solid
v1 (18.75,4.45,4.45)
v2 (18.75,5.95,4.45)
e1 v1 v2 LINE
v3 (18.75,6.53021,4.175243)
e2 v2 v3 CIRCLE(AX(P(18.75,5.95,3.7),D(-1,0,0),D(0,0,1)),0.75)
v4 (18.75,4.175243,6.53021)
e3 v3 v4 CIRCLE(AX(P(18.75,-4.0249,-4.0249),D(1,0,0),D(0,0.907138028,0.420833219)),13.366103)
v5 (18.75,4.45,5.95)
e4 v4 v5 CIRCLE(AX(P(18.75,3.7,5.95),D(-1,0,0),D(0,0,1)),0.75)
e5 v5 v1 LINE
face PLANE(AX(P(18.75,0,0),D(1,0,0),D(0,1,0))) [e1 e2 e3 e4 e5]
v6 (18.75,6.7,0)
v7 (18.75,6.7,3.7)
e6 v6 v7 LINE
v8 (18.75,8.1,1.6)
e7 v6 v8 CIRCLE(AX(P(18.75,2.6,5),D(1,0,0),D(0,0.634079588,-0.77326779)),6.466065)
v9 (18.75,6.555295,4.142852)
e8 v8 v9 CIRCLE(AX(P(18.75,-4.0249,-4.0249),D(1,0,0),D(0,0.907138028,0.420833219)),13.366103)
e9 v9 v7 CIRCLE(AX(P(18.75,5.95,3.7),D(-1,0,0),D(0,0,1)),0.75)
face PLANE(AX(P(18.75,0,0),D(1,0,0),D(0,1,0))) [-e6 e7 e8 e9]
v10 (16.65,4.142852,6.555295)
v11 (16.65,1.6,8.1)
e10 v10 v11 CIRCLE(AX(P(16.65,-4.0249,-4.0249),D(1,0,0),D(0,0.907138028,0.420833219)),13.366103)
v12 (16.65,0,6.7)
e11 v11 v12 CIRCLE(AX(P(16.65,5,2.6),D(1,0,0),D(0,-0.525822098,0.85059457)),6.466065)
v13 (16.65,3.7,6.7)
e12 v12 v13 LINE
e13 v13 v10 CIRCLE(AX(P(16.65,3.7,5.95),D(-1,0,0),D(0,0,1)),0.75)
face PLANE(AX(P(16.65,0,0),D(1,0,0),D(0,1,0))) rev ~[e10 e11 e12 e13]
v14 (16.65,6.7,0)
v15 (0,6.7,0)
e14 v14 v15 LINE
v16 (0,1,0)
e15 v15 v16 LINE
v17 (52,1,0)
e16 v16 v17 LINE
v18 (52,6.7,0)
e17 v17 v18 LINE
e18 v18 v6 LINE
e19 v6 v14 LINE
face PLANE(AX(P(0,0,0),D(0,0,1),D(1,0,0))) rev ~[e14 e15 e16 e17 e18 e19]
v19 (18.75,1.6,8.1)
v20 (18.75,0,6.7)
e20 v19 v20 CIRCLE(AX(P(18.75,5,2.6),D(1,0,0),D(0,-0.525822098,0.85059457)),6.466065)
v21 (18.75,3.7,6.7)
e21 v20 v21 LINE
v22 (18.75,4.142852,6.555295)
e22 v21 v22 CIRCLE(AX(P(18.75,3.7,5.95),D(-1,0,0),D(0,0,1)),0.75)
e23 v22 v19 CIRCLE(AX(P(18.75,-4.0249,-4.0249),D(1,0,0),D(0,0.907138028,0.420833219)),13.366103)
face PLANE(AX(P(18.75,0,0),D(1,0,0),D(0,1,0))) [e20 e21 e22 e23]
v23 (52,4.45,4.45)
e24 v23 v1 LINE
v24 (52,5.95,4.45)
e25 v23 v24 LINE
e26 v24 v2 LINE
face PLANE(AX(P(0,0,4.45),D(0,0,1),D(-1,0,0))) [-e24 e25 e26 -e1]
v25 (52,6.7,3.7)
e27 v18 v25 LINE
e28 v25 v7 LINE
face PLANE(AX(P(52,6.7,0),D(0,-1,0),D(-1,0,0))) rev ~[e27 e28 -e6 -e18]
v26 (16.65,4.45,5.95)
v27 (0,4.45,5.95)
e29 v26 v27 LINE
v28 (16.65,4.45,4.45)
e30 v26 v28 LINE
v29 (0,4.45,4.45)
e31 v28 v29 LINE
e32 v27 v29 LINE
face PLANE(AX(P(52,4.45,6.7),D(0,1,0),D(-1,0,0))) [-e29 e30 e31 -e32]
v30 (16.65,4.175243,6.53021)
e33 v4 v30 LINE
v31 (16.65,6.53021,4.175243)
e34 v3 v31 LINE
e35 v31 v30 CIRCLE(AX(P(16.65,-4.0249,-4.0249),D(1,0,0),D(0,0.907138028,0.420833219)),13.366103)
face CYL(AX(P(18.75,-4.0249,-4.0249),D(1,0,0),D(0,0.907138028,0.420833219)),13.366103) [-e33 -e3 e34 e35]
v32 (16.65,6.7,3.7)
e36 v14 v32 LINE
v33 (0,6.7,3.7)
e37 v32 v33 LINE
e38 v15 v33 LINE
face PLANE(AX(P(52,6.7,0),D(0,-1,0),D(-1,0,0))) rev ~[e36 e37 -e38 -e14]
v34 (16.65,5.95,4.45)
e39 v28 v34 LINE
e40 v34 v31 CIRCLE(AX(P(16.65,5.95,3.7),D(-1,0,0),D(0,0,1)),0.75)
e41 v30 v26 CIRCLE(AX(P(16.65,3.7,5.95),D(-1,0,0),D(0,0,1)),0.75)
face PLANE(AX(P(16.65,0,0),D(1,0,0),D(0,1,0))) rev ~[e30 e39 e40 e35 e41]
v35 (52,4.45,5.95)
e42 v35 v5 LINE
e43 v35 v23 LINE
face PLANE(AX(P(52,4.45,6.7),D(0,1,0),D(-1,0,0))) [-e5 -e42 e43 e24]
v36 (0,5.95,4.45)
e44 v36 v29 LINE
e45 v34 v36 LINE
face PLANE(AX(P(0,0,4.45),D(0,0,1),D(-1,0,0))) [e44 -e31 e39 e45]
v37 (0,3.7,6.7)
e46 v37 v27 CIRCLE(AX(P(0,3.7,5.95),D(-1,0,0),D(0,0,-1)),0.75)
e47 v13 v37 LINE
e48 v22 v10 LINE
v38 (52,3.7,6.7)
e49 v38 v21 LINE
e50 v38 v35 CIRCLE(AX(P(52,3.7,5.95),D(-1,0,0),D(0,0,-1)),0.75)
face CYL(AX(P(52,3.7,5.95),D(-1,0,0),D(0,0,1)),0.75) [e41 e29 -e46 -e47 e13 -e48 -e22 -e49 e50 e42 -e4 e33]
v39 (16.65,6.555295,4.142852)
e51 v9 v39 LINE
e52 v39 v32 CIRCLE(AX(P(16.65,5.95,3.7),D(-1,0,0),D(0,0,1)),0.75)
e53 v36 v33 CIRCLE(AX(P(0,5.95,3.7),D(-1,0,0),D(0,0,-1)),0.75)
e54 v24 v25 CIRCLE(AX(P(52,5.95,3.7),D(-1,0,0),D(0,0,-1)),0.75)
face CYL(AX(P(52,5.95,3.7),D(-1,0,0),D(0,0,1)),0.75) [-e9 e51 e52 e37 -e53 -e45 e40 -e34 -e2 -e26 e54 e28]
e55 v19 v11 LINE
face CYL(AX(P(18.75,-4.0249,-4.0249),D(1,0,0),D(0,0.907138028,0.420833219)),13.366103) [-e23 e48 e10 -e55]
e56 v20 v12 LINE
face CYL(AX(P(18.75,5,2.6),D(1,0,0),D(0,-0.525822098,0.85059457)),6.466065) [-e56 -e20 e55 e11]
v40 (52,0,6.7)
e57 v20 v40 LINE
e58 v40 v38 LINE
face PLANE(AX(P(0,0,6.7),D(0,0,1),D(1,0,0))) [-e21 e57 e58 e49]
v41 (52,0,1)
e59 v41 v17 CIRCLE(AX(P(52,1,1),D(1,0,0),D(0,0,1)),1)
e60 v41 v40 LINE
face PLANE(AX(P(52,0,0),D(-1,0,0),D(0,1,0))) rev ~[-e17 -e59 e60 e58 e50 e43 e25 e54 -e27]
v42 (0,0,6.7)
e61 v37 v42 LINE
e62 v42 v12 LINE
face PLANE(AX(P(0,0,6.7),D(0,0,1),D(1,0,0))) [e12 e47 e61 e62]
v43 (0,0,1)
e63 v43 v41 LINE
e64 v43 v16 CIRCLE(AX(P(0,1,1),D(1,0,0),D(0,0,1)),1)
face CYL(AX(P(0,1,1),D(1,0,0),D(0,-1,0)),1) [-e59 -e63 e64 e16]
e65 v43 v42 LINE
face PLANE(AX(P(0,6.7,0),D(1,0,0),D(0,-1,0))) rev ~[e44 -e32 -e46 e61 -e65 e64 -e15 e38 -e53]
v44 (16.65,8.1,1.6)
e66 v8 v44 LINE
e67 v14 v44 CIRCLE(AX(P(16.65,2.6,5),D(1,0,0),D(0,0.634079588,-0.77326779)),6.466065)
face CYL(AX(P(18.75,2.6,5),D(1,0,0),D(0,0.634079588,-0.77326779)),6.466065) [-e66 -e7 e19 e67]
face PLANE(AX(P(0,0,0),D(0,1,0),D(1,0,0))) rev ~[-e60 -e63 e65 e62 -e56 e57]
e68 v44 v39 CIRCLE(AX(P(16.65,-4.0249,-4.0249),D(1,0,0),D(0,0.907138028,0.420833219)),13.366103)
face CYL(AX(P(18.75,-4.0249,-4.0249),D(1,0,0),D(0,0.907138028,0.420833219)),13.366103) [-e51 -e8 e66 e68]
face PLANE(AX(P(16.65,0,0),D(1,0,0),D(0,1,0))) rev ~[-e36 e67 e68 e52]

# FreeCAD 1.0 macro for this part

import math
import FreeCAD as App
import Part
import Sketcher

V = App.Vector
Q = App.Units.Quantity


def edges_at(feature, points):
    """Names of the edges that pass closest to the given points."""
    edges = feature.Shape.Edges
    near = lambda p: min(range(len(edges)), key=lambda i: edges[i].distToShape(Part.Vertex(*p))[0])
    return sorted({f"Edge{near(p) + 1}" for p in points})

doc = App.newDocument("Part")
body = doc.addObject("PartDesign::Body", "Body")

sketch1 = doc.addObject("Sketcher::SketchObject", "Sketch")
body.addObject(sketch1)
sketch1.AttachmentSupport = (doc.XY_Plane, [""])
sketch1.MapMode = "FlatFace"
sketch1.addGeometry([
    Part.LineSegment(V(0, 6.7, 0), V(0, 0, 0)),
    Part.LineSegment(V(0, 0, 0), V(52, 0, 0)),
    Part.LineSegment(V(52, 0, 0), V(52, 6.7, 0)),
    Part.LineSegment(V(52, 6.7, 0), V(0, 6.7, 0)),
], False)
sketch1.addConstraint([
    Sketcher.Constraint("Coincident", 0, 2, 1, 1),
    Sketcher.Constraint("Coincident", 1, 2, 2, 1),
    Sketcher.Constraint("Coincident", 2, 2, 3, 1),
    Sketcher.Constraint("Coincident", 3, 2, 0, 1),
    Sketcher.Constraint("Vertical", 0),
    Sketcher.Constraint("Horizontal", 1),
    Sketcher.Constraint("Vertical", 2),
    Sketcher.Constraint("Horizontal", 3),
    Sketcher.Constraint("Coincident", 0, 2, -1, 1),
    Sketcher.Constraint("DistanceX", 1, 1, 1, 2, 52.0),
    Sketcher.Constraint("DistanceY", 0, 2, 0, 1, 6.7),
])
pad1 = doc.addObject("PartDesign::Pad", "Pad")
body.addObject(pad1)
pad1.Profile = sketch1
pad1.Length = 6.7

sketch2 = doc.addObject("Sketcher::SketchObject", "Sketch001")
body.addObject(sketch2)
sketch2.AttachmentSupport = (doc.XY_Plane, [""])
sketch2.MapMode = "FlatFace"
sketch2.AttachmentOffset = App.Placement(V(0, 0, 6.7), App.Rotation())
sketch2.addGeometry([
    Part.LineSegment(V(52, 6.7, 0), V(0, 6.7, 0)),
    Part.LineSegment(V(0, 6.7, 0), V(0, 4.45, 0)),
    Part.LineSegment(V(0, 4.45, 0), V(52, 4.45, 0)),
    Part.LineSegment(V(52, 4.45, 0), V(52, 6.7, 0)),
], False)
sketch2.addConstraint([
    Sketcher.Constraint("Coincident", 0, 2, 1, 1),
    Sketcher.Constraint("Coincident", 1, 2, 2, 1),
    Sketcher.Constraint("Coincident", 2, 2, 3, 1),
    Sketcher.Constraint("Coincident", 3, 2, 0, 1),
    Sketcher.Constraint("Horizontal", 0),
    Sketcher.Constraint("Vertical", 1),
    Sketcher.Constraint("Horizontal", 2),
    Sketcher.Constraint("Vertical", 3),
    Sketcher.Constraint("PointOnObject", 0, 2, -2),
    Sketcher.Constraint("DistanceX", 0, 2, 0, 1, 52.0),
    Sketcher.Constraint("DistanceY", -1, 1, 1, 2, 4.45),
    Sketcher.Constraint("DistanceY", 1, 2, 1, 1, 2.25),
])
pocket1 = doc.addObject("PartDesign::Pocket", "Pocket")
body.addObject(pocket1)
pocket1.Profile = sketch2
pocket1.Length = 2.25
doc.recompute()

fillet = doc.addObject("PartDesign::Fillet", "Fillet")
body.addObject(fillet)
fillet.Base = (pocket1, edges_at(pocket1, [(26, 6.7, 4.45), (26, 4.45, 6.7)]))
fillet.Radius = 0.75
doc.recompute()

fillet2 = doc.addObject("PartDesign::Fillet", "Fillet001")
body.addObject(fillet2)
fillet2.Base = (fillet, edges_at(fillet, [(26, 0, 0)]))
fillet2.Radius = 1

sketch3 = doc.addObject("Sketcher::SketchObject", "Sketch002")
body.addObject(sketch3)
sketch3.AttachmentSupport = (doc.YZ_Plane, [""])
sketch3.MapMode = "FlatFace"
sketch3.AttachmentOffset = App.Placement(V(0, 0, 18.75), App.Rotation())
sketch3.addGeometry([
    Part.LineSegment(V(0, 6.7, 0), V(6.7, 0, 0)),
    Part.ArcOfCircle(Part.Circle(V(2.6, 5, 0), V(0, 0, 1), 6.466065), math.radians(-50.648247), math.radians(-31.723603)),
    Part.ArcOfCircle(Part.Circle(V(-4.0249, -4.0249, 0), V(0, 0, 1), 13.366103), math.radians(24.887203), math.radians(65.112797)),
    Part.ArcOfCircle(Part.Circle(V(5, 2.6, 0), V(0, 0, 1), 6.466065), math.radians(121.723603), math.radians(140.648247)),
], False)
sketch3.addConstraint([
    Sketcher.Constraint("Coincident", 0, 2, 1, 1),
    Sketcher.Constraint("Coincident", 1, 2, 2, 1),
    Sketcher.Constraint("Coincident", 2, 2, 3, 1),
    Sketcher.Constraint("Coincident", 3, 2, 0, 1),
    Sketcher.Constraint("Equal", 1, 3),
    Sketcher.Constraint("PointOnObject", 0, 2, -1),
    Sketcher.Constraint("PointOnObject", 3, 2, -2),
    Sketcher.Constraint("DistanceY", -1, 1, 1, 2, 1.6),
    Sketcher.Constraint("DistanceX", -1, 1, 2, 2, 1.6),
    Sketcher.Constraint("DistanceX", 0, 2, 1, 2, 1.4),
    Sketcher.Constraint("DistanceY", 3, 2, 2, 2, 1.4),
    Sketcher.Constraint("Angle", 0, Q("-45 deg")),
    Sketcher.Constraint("DistanceY", -1, 1, 1, 3, 5.0),
    Sketcher.Constraint("Radius", 2, 13.366),
    Sketcher.Constraint("DistanceY", 1, 2, 3, 3, 1.0),
])
pad2 = doc.addObject("PartDesign::Pad", "Pad001")
body.addObject(pad2)
pad2.Profile = sketch3
pad2.Length = 2.1
pad2.Reversed = True

doc.recompute()
